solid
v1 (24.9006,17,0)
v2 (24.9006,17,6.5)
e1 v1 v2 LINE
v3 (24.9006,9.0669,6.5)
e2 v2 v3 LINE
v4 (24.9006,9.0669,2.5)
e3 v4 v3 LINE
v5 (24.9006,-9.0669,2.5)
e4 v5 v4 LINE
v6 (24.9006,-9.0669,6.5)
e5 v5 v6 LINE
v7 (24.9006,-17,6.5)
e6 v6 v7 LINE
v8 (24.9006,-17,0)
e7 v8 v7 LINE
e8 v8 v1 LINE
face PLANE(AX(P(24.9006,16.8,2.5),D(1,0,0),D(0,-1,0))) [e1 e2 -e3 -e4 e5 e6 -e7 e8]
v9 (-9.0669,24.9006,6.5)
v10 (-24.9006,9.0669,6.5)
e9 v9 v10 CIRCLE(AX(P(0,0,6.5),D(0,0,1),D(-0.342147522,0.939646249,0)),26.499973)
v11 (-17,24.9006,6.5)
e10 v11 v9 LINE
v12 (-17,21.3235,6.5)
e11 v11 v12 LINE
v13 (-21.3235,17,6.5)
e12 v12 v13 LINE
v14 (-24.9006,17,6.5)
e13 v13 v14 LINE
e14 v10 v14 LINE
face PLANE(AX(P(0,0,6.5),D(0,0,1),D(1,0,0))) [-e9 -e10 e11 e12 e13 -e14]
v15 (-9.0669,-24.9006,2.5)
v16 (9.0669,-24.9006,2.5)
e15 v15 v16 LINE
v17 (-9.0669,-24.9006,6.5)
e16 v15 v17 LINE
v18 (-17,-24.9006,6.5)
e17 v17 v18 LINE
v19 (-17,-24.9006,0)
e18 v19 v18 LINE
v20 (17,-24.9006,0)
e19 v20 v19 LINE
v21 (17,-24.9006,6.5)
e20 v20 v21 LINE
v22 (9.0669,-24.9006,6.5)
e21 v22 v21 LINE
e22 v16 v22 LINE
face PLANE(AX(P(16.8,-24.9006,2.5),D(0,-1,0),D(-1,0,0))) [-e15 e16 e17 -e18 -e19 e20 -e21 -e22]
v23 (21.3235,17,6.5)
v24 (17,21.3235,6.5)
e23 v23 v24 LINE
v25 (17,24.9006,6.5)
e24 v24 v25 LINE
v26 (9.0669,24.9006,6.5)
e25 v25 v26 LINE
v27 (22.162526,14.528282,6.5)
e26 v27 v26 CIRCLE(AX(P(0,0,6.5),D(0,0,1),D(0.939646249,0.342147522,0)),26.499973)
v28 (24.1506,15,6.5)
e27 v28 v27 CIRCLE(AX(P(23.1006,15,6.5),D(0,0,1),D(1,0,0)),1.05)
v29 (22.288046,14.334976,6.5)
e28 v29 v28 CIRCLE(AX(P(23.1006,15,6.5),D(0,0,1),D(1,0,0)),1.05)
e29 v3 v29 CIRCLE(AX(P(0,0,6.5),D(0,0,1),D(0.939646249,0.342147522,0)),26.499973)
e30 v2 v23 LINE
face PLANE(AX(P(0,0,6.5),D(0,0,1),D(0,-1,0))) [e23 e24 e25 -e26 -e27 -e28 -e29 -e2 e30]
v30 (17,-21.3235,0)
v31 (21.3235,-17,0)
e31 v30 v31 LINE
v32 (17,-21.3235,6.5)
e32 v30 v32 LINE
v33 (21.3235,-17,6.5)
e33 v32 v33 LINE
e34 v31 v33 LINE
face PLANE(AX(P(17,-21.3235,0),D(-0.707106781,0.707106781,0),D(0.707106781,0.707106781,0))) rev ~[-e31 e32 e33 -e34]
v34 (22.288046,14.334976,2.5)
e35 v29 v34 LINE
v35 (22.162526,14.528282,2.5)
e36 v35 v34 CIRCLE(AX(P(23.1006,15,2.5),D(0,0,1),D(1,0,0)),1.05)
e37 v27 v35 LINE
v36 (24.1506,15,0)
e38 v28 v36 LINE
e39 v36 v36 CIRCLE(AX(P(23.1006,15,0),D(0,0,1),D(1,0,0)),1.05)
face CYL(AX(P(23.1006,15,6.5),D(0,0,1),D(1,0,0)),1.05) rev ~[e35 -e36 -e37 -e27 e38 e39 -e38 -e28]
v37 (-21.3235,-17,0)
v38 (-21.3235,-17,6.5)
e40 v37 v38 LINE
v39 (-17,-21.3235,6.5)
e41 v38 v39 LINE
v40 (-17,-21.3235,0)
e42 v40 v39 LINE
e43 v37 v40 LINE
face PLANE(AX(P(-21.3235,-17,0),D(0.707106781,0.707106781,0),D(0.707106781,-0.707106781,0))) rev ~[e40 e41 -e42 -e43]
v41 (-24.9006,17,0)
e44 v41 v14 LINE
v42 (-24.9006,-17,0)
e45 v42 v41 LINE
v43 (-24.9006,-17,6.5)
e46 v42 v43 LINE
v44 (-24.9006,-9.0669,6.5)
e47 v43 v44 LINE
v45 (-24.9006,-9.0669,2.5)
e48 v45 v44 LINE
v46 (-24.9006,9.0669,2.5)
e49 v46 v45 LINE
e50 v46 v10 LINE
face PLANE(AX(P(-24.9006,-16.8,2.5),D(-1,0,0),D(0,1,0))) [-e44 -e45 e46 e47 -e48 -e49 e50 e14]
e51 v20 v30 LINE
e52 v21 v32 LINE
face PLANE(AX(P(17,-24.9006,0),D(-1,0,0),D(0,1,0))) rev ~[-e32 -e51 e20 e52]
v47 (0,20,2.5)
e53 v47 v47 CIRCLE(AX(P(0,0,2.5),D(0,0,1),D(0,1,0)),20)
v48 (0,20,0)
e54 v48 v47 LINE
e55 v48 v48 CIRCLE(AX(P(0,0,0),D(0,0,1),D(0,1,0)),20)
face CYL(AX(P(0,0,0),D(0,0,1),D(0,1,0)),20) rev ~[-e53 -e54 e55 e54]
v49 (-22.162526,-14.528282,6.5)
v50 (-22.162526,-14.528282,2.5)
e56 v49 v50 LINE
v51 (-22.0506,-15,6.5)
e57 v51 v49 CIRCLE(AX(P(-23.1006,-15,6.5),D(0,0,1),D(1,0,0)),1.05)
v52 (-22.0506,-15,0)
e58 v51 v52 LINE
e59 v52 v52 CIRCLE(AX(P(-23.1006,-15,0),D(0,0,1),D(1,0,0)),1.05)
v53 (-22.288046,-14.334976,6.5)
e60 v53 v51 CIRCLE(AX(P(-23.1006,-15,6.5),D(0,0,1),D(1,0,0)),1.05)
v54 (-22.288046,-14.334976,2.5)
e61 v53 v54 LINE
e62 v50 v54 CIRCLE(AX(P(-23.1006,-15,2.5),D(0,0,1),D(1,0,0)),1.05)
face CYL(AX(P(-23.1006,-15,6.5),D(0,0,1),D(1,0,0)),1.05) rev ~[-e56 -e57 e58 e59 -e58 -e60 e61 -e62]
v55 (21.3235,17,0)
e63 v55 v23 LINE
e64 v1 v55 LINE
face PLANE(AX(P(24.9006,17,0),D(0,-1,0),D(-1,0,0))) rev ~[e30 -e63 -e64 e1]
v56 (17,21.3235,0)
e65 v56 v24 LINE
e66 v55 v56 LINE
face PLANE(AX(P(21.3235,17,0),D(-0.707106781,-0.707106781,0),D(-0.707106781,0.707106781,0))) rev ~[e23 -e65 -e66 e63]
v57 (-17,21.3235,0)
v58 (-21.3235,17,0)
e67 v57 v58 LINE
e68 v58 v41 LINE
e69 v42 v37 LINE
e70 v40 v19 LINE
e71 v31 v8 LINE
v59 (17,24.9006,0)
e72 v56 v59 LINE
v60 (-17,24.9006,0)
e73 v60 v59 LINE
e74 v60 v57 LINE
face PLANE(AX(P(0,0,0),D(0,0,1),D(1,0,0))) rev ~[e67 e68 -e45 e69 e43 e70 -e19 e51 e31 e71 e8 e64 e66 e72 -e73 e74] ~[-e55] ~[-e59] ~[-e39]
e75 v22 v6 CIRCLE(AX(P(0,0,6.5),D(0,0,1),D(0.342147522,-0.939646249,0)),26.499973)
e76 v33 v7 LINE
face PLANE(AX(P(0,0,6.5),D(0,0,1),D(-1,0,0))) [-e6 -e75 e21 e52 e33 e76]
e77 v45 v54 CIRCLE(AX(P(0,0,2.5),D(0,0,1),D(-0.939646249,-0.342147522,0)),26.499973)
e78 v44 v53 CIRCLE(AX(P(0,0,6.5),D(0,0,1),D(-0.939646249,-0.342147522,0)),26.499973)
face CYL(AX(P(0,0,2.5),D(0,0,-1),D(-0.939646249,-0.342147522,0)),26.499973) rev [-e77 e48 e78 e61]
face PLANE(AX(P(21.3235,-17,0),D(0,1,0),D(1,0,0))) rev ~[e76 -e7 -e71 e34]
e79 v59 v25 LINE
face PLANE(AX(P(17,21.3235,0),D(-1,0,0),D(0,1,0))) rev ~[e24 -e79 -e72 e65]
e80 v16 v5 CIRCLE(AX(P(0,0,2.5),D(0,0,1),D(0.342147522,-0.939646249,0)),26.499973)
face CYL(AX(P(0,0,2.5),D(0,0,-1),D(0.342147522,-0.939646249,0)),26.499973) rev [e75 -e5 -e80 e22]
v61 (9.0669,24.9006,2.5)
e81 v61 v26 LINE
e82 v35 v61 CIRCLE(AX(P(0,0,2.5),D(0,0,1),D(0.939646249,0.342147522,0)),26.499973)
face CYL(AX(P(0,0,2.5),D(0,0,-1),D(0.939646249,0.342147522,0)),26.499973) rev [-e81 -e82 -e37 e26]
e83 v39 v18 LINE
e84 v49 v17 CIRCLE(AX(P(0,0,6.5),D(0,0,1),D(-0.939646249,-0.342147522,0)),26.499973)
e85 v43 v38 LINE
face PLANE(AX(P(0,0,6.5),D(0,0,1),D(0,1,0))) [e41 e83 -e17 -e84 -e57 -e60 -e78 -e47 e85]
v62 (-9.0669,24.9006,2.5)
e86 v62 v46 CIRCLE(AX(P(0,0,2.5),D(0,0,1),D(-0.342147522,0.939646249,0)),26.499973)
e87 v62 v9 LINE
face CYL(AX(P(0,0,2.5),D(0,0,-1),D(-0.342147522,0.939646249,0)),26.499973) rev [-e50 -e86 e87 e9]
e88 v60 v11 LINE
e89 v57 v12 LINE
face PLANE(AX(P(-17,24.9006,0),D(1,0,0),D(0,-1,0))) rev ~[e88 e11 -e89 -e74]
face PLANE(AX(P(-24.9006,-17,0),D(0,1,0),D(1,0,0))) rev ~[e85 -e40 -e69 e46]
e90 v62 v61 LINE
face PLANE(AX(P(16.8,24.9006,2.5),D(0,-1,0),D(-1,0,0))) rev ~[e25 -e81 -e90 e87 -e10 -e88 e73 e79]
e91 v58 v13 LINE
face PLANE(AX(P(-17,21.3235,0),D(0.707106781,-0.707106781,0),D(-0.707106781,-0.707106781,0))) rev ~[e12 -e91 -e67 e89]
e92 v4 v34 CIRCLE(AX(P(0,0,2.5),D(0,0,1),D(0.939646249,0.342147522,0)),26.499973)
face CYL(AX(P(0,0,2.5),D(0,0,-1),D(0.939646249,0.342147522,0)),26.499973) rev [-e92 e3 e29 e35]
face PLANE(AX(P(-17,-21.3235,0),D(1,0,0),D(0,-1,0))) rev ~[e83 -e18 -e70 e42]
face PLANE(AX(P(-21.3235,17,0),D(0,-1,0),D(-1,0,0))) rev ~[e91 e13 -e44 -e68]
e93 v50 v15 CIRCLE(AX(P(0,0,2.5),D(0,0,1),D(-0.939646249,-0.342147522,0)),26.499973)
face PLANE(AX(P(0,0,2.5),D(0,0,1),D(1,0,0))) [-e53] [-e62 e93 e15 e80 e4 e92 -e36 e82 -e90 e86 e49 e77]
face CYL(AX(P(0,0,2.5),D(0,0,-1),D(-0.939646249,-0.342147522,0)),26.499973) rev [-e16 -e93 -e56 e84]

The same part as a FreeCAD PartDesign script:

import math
import FreeCAD as App
import Part
import Sketcher
Q = App.Units.Quantity


def add_polygon(sketch, points):
    """Adds a closed chain of lines whose ends are joined by coincident constraints."""
    first, n = sketch.GeometryCount, len(points)
    for a, b in zip(points, points[1:] + points[:1]):
        sketch.addGeometry(Part.LineSegment(App.Vector(*a, 0), App.Vector(*b, 0)), False)
    for i in range(n):
        sketch.addConstraint(Sketcher.Constraint("Coincident", first + i, 2, first + (i + 1) % n, 1))

doc = App.newDocument("Part")
body = doc.addObject("PartDesign::Body", "Body")

# Sketch on XY plane
sketch1 = body.newObject("Sketcher::SketchObject", "Sketch")
sketch1.AttachmentSupport = (doc.getObject("XY_Plane"), [""])
sketch1.MapMode = "FlatFace"
add_polygon(sketch1, [(16.8, 24.9), (-16.8, 24.9), (-16.8, 21.2), (-21.2, 16.8), (-24.9, 16.8), (-24.9, -16.8), (-21.2, -16.8), (-16.8, -21.2), (-16.8, -24.9), (16.8, -24.9), (16.8, -21.2), (21.2, -16.8), (24.9, -16.8), (24.9, 16.8), (21.2, 16.8), (16.8, 21.2)])  # lines 0-15
sketch1.addConstraint(Sketcher.Constraint("Horizontal", 0))
sketch1.addConstraint(Sketcher.Constraint("Vertical", 1))
sketch1.addConstraint(Sketcher.Constraint("Horizontal", 3))
sketch1.addConstraint(Sketcher.Constraint("Vertical", 4))
sketch1.addConstraint(Sketcher.Constraint("Horizontal", 5))
sketch1.addConstraint(Sketcher.Constraint("Vertical", 7))
sketch1.addConstraint(Sketcher.Constraint("Horizontal", 8))
sketch1.addConstraint(Sketcher.Constraint("Vertical", 9))
sketch1.addConstraint(Sketcher.Constraint("Horizontal", 11))
sketch1.addConstraint(Sketcher.Constraint("Vertical", 12))
sketch1.addConstraint(Sketcher.Constraint("Horizontal", 13))
sketch1.addConstraint(Sketcher.Constraint("Vertical", 15))
sketch1.addConstraint(Sketcher.Constraint("Symmetric", 0, 2, 8, 2, -1, 1))
sketch1.addConstraint(Sketcher.Constraint("Symmetric", 2, 2, 10, 2, -1, 1))
sketch1.addConstraint(Sketcher.Constraint("Symmetric", 4, 2, 12, 2, -1, 1))
sketch1.addConstraint(Sketcher.Constraint("Symmetric", 6, 2, 14, 2, -1, 1))
sketch1.addConstraint(Sketcher.Constraint("Symmetric", 6, 2, 9, 2, -2))
sketch1.addConstraint(Sketcher.Constraint("Symmetric", 5, 2, 10, 2, -2))
sketch1.addConstraint(Sketcher.Constraint("Perpendicular", 2, 6))
sketch1.addConstraint(Sketcher.Constraint("Perpendicular", 6, 10))
sketch1.addConstraint(Sketcher.Constraint("Perpendicular", 10, 14))
sketch1.addConstraint(Sketcher.Constraint("Equal", 13, 1))
sketch1.addConstraint(Sketcher.Constraint("Equal", 8, 4))
sketch1.addConstraint(Sketcher.Constraint("DistanceX", 3, 2, 3, 1, 3.66))
sketch1.addConstraint(Sketcher.Constraint("DistanceX", 0, 2, -1, 1, 16.8))
sketch1.addConstraint(Sketcher.Constraint("Distance", 2, 6.28))
pad1 = body.newObject("PartDesign::Pad", "Pad")
pad1.Profile = sketch1
pad1.Length = 2.5

# Sketch on XY plane
sketch2 = body.newObject("Sketcher::SketchObject", "Sketch001")
sketch2.AttachmentSupport = (doc.getObject("XY_Plane"), [""])
sketch2.MapMode = "FlatFace"
sketch2.addGeometry(Part.Circle(App.Vector(0, 0, 0), App.Vector(0, 0, 1), 20), False)
sketch2.addConstraint(Sketcher.Constraint("Coincident", 0, 3, -1, 1))
sketch2.addConstraint(Sketcher.Constraint("Diameter", 0, 40.0))
doc.recompute()
hole = body.newObject("PartDesign::Hole", "Hole")
hole.Profile = sketch2
hole.ThreadType = "None"
hole.Diameter = 40
hole.DepthType = "ThroughAll"
hole.Reversed = True

# Sketch on XY plane
sketch3 = body.newObject("Sketcher::SketchObject", "Sketch002")
sketch3.AttachmentSupport = (doc.getObject("XY_Plane"), [""])
sketch3.MapMode = "FlatFace"
sketch3.AttachmentOffset = App.Placement(App.Vector(0, 0, 2.5), App.Rotation())
sketch3.addGeometry(Part.LineSegment(App.Vector(-9.1, 24.9, 0), App.Vector(-16.8, 24.9, 0)), False)
sketch3.addGeometry(Part.LineSegment(App.Vector(-16.8, 24.9, 0), App.Vector(-16.8, 21.2, 0)), False)
sketch3.addGeometry(Part.LineSegment(App.Vector(-16.8, 21.2, 0), App.Vector(-21.2, 16.8, 0)), False)
sketch3.addGeometry(Part.LineSegment(App.Vector(-21.2, 16.8, 0), App.Vector(-24.9, 16.8, 0)), False)
sketch3.addGeometry(Part.LineSegment(App.Vector(-24.9, 16.8, 0), App.Vector(-24.9, 9.1, 0)), False)
sketch3.addGeometry(Part.ArcOfCircle(Part.Circle(App.Vector(0, 0, 0), App.Vector(0, 0, 1), 26.5), math.radians(110), math.radians(160)), False)
sketch3.addConstraint(Sketcher.Constraint("Coincident", 0, 2, 1, 1))
sketch3.addConstraint(Sketcher.Constraint("Coincident", 1, 2, 2, 1))
sketch3.addConstraint(Sketcher.Constraint("Coincident", 2, 2, 3, 1))
sketch3.addConstraint(Sketcher.Constraint("Coincident", 3, 2, 4, 1))
sketch3.addConstraint(Sketcher.Constraint("Coincident", 4, 2, 5, 2))
sketch3.addConstraint(Sketcher.Constraint("Coincident", 5, 1, 0, 1))
sketch3.addConstraint(Sketcher.Constraint("Horizontal", 0))
sketch3.addConstraint(Sketcher.Constraint("Vertical", 1))
sketch3.addConstraint(Sketcher.Constraint("Horizontal", 3))
sketch3.addConstraint(Sketcher.Constraint("Vertical", 4))
sketch3.addConstraint(Sketcher.Constraint("Coincident", 5, 3, -1, 1))
sketch3.addConstraint(Sketcher.Constraint("Equal", 3, 1))
sketch3.addConstraint(Sketcher.Constraint("Equal", 0, 4))
sketch3.addConstraint(Sketcher.Constraint("Radius", 5, 26.5))
sketch3.addConstraint(Sketcher.Constraint("Angle", 2, Q("-135 deg")))
sketch3.addConstraint(Sketcher.Constraint("DistanceX", 3, 2, 3, 1, 3.66))
sketch3.addConstraint(Sketcher.Constraint("DistanceX", 0, 2, -1, 1, 16.8))
sketch3.addConstraint(Sketcher.Constraint("Distance", 2, 6.28))
pad2 = body.newObject("PartDesign::Pad", "Pad001")
pad2.Profile = sketch3
pad2.Length = 4
doc.recompute()

polarpattern = body.newObject("PartDesign::PolarPattern", "PolarPattern")
polarpattern.Originals = [pad2]
polarpattern.Axis = (doc.getObject("Z_Axis"), [""])
polarpattern.Angle = 360
polarpattern.Occurrences = 4
body.Tip = polarpattern

# Sketch on XY plane
sketch4 = body.newObject("Sketcher::SketchObject", "Sketch003")
sketch4.AttachmentSupport = (doc.getObject("XY_Plane"), [""])
sketch4.MapMode = "FlatFace"
sketch4.AttachmentOffset = App.Placement(App.Vector(0, 0, 6.5), App.Rotation())
sketch4.addGeometry(Part.Circle(App.Vector(-23.1, -15, 0), App.Vector(0, 0, 1), 1.1), False)
sketch4.addGeometry(Part.Circle(App.Vector(23.1, 15, 0), App.Vector(0, 0, 1), 1.1), False)
sketch4.addConstraint(Sketcher.Constraint("Equal", 0, 1))
sketch4.addConstraint(Sketcher.Constraint("Symmetric", 0, 3, 1, 3, -1, 1))
sketch4.addConstraint(Sketcher.Constraint("Diameter", 0, 2.1))
sketch4.addConstraint(Sketcher.Constraint("DistanceY", 0, 3, -1, 1, 15.0))
sketch4.addConstraint(Sketcher.Constraint("DistanceX", 0, 3, -1, 1, 23.1006))
pocket1 = body.newObject("PartDesign::Pocket", "Pocket")
pocket1.Profile = sketch4
pocket1.Type = "ThroughAll"

# Sketch on XY plane
sketch5 = body.newObject("Sketcher::SketchObject", "Sketch004")
sketch5.AttachmentSupport = (doc.getObject("XY_Plane"), [""])
sketch5.MapMode = "FlatFace"
add_polygon(sketch5, [(16.8, 21.24), (16.8, 24.9), (17, 24.9), (17, 21.32), (21.32, 17), (24.9, 17), (24.9, 16.8), (21.24, 16.8)])  # lines 0-7
add_polygon(sketch5, [(-21.24, 16.8), (-24.9, 16.8), (-24.9, 17), (-21.32, 17), (-17, 21.32), (-17, 24.9), (-16.8, 24.9), (-16.8, 21.24)])  # lines 8-15
add_polygon(sketch5, [(-16.8, -21.24), (-16.8, -24.9), (-17, -24.9), (-17, -21.32), (-21.32, -17), (-24.9, -17), (-24.9, -16.8), (-21.24, -16.8)])  # lines 16-23
add_polygon(sketch5, [(21.24, -16.8), (24.9, -16.8), (24.9, -17), (21.32, -17), (17, -21.32), (17, -24.9), (16.8, -24.9), (16.8, -21.24)])  # lines 24-31
sketch5.addConstraint(Sketcher.Constraint("Vertical", 0))
sketch5.addConstraint(Sketcher.Constraint("Horizontal", 1))
sketch5.addConstraint(Sketcher.Constraint("Vertical", 2))
sketch5.addConstraint(Sketcher.Constraint("Horizontal", 4))
sketch5.addConstraint(Sketcher.Constraint("Vertical", 5))
sketch5.addConstraint(Sketcher.Constraint("Horizontal", 6))
sketch5.addConstraint(Sketcher.Constraint("Horizontal", 8))
sketch5.addConstraint(Sketcher.Constraint("Vertical", 9))
sketch5.addConstraint(Sketcher.Constraint("Horizontal", 10))
sketch5.addConstraint(Sketcher.Constraint("Vertical", 12))
sketch5.addConstraint(Sketcher.Constraint("Horizontal", 13))
sketch5.addConstraint(Sketcher.Constraint("Vertical", 14))
sketch5.addConstraint(Sketcher.Constraint("Vertical", 16))
sketch5.addConstraint(Sketcher.Constraint("Horizontal", 17))
sketch5.addConstraint(Sketcher.Constraint("Vertical", 18))
sketch5.addConstraint(Sketcher.Constraint("Horizontal", 20))
sketch5.addConstraint(Sketcher.Constraint("Vertical", 21))
sketch5.addConstraint(Sketcher.Constraint("Horizontal", 22))
sketch5.addConstraint(Sketcher.Constraint("Horizontal", 24))
sketch5.addConstraint(Sketcher.Constraint("Vertical", 25))
sketch5.addConstraint(Sketcher.Constraint("Horizontal", 26))
sketch5.addConstraint(Sketcher.Constraint("Vertical", 28))
sketch5.addConstraint(Sketcher.Constraint("Horizontal", 29))
sketch5.addConstraint(Sketcher.Constraint("Vertical", 30))
sketch5.addConstraint(Sketcher.Constraint("Symmetric", 0, 2, 16, 2, -1, 1))
sketch5.addConstraint(Sketcher.Constraint("Symmetric", 2, 2, 18, 2, -1, 1))
sketch5.addConstraint(Sketcher.Constraint("Symmetric", 3, 2, 19, 2, -1, 1))
sketch5.addConstraint(Sketcher.Constraint("Symmetric", 5, 2, 21, 2, -1, 1))
sketch5.addConstraint(Sketcher.Constraint("Symmetric", 8, 2, 24, 2, -1, 1))
sketch5.addConstraint(Sketcher.Constraint("Symmetric", 10, 2, 26, 2, -1, 1))
sketch5.addConstraint(Sketcher.Constraint("Symmetric", 11, 2, 27, 2, -1, 1))
sketch5.addConstraint(Sketcher.Constraint("Symmetric", 13, 2, 29, 2, -1, 1))
sketch5.addConstraint(Sketcher.Constraint("Symmetric", 5, 2, 8, 2, -2))
sketch5.addConstraint(Sketcher.Constraint("Symmetric", 3, 2, 10, 2, -2))
sketch5.addConstraint(Sketcher.Constraint("Symmetric", 2, 2, 11, 2, -2))
sketch5.addConstraint(Sketcher.Constraint("Symmetric", 0, 2, 13, 2, -2))
sketch5.addConstraint(Sketcher.Constraint("Parallel", 3, 7))
sketch5.addConstraint(Sketcher.Constraint("Perpendicular", 7, 11))
sketch5.addConstraint(Sketcher.Constraint("Parallel", 11, 15))
sketch5.addConstraint(Sketcher.Constraint("Parallel", 19, 23))
sketch5.addConstraint(Sketcher.Constraint("Parallel", 27, 31))
sketch5.addConstraint(Sketcher.Constraint("Horizontal", 7, 2, 14, 2))
sketch5.addConstraint(Sketcher.Constraint("Horizontal", 23, 2, 30, 2))
sketch5.addConstraint(Sketcher.Constraint("Vertical", 15, 2, 22, 2))
sketch5.addConstraint(Sketcher.Constraint("Equal", 24, 0))
sketch5.addConstraint(Sketcher.Constraint("Equal", 26, 2))
sketch5.addConstraint(Sketcher.Constraint("DistanceX", 1, 1, 1, 2, 0.2))
sketch5.addConstraint(Sketcher.Constraint("DistanceX", -1, 1, 1, 2, 17.0))
sketch5.addConstraint(Sketcher.Constraint("DistanceY", -1, 1, 3, 2, 17.0))
sketch5.addConstraint(Sketcher.Constraint("DistanceX", 6, 2, 6, 1, 3.66))
sketch5.addConstraint(Sketcher.Constraint("Distance", 7, 6.28))
sketch5.addConstraint(Sketcher.Constraint("DistanceX", 4, 1, 4, 2, 3.577))
pad3 = body.newObject("PartDesign::Pad", "Pad002")
pad3.Profile = sketch5
pad3.Length = 6.5

doc.recompute()
